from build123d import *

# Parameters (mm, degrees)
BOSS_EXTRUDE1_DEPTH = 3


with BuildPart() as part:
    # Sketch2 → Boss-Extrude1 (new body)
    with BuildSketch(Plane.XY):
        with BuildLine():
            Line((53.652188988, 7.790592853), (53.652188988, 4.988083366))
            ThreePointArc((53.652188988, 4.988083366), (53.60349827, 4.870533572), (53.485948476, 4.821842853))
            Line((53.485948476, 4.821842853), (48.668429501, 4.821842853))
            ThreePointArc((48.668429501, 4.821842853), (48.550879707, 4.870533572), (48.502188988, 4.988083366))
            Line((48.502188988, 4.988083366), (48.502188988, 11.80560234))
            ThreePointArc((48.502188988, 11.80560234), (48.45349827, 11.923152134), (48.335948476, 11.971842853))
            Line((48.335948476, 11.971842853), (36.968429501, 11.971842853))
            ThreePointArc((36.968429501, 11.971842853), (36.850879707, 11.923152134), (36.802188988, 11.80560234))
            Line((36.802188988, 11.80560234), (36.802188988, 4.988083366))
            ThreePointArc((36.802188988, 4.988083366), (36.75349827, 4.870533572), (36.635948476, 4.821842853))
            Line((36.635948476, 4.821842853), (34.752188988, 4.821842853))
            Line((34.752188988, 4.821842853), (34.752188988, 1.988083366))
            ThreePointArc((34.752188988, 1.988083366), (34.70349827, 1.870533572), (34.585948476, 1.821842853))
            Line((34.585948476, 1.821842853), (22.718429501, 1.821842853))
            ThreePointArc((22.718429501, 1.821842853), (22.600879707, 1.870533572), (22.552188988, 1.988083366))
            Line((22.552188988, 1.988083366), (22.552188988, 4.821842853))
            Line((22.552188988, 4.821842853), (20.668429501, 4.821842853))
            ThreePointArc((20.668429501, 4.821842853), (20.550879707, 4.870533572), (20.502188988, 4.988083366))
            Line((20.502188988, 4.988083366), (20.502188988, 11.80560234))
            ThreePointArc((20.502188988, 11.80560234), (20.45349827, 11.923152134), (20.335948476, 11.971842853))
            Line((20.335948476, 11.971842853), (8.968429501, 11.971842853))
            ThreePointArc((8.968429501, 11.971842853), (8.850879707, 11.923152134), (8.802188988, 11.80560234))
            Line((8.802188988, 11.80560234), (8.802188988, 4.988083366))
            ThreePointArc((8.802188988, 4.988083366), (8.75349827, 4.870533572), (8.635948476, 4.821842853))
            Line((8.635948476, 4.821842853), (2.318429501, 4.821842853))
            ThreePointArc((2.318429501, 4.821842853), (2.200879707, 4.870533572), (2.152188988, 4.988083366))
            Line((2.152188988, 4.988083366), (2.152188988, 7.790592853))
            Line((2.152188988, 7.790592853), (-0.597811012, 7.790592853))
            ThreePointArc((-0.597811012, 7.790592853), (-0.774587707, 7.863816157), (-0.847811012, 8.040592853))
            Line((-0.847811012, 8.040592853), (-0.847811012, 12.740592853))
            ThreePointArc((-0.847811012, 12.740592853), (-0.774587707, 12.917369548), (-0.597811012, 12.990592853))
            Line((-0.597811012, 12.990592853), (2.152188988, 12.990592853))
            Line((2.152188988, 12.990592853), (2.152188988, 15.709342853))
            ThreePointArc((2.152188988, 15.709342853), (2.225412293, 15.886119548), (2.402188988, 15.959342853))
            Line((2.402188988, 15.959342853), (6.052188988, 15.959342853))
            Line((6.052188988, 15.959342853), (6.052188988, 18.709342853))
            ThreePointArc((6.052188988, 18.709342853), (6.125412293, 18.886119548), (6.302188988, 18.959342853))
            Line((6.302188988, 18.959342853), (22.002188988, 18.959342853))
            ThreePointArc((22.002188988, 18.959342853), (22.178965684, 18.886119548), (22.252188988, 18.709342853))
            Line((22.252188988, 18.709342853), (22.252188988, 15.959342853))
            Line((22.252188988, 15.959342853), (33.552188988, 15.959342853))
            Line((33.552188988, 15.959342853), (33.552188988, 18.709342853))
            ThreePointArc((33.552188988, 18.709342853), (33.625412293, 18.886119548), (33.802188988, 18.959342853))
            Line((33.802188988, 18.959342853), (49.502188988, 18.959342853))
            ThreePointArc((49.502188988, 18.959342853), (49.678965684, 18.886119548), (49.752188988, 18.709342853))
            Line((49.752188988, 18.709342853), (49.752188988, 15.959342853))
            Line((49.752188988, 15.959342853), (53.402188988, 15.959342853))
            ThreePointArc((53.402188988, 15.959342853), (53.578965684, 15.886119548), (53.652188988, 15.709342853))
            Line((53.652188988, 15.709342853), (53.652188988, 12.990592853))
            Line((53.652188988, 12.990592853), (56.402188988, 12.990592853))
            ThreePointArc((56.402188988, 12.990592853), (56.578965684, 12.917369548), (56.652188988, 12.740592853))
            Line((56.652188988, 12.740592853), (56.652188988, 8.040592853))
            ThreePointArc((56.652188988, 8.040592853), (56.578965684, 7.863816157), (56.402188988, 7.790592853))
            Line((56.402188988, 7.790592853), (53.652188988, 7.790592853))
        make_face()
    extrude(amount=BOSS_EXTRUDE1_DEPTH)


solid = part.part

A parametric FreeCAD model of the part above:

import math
import FreeCAD as App
import Part
import Sketcher

V = App.Vector

doc = App.newDocument("Part")
body = doc.addObject("PartDesign::Body", "Body")

# Sketch on XY plane
sketch1 = body.newObject("Sketcher::SketchObject", "Sketch")
sketch1.AttachmentSupport = (doc.getObject("XY_Plane"), [""])
sketch1.MapMode = "FlatFace"
sketch1.addGeometry(Part.LineSegment(V(53.65, 4.99, 0), V(53.65, 7.79, 0)), False)
sketch1.addGeometry(Part.LineSegment(V(53.65, 7.79, 0), V(56.4, 7.79, 0)), False)
sketch1.addGeometry(Part.ArcOfCircle(Part.Circle(V(56.4, 8.04, 0), V(0, 0, 1), 0.25), math.radians(-90), math.radians(0)), False)
sketch1.addGeometry(Part.LineSegment(V(56.65, 8.04, 0), V(56.65, 12.74, 0)), False)
sketch1.addGeometry(Part.ArcOfCircle(Part.Circle(V(56.4, 12.74, 0), V(0, 0, 1), 0.25), math.radians(0), math.radians(90)), False)
sketch1.addGeometry(Part.LineSegment(V(56.4, 12.99, 0), V(53.65, 12.99, 0)), False)
sketch1.addGeometry(Part.LineSegment(V(53.65, 12.99, 0), V(53.65, 15.71, 0)), False)
sketch1.addGeometry(Part.ArcOfCircle(Part.Circle(V(53.4, 15.71, 0), V(0, 0, 1), 0.25), math.radians(0), math.radians(90)), False)
sketch1.addGeometry(Part.LineSegment(V(53.4, 15.96, 0), V(49.75, 15.96, 0)), False)
sketch1.addGeometry(Part.LineSegment(V(49.75, 15.96, 0), V(49.75, 18.71, 0)), False)
sketch1.addGeometry(Part.ArcOfCircle(Part.Circle(V(49.5, 18.71, 0), V(0, 0, 1), 0.25), math.radians(0), math.radians(90)), False)
sketch1.addGeometry(Part.LineSegment(V(49.5, 18.96, 0), V(33.8, 18.96, 0)), False)
sketch1.addGeometry(Part.ArcOfCircle(Part.Circle(V(33.8, 18.71, 0), V(0, 0, 1), 0.25), math.radians(90), math.radians(180)), False)
sketch1.addGeometry(Part.LineSegment(V(33.55, 18.71, 0), V(33.55, 15.96, 0)), False)
sketch1.addGeometry(Part.LineSegment(V(33.55, 15.96, 0), V(22.25, 15.96, 0)), False)
sketch1.addGeometry(Part.LineSegment(V(22.25, 15.96, 0), V(22.25, 18.71, 0)), False)
sketch1.addGeometry(Part.ArcOfCircle(Part.Circle(V(22, 18.71, 0), V(0, 0, 1), 0.25), math.radians(0), math.radians(90)), False)
sketch1.addGeometry(Part.LineSegment(V(22, 18.96, 0), V(6.3, 18.96, 0)), False)
sketch1.addGeometry(Part.ArcOfCircle(Part.Circle(V(6.3, 18.71, 0), V(0, 0, 1), 0.25), math.radians(90), math.radians(180)), False)
sketch1.addGeometry(Part.LineSegment(V(6.05, 18.71, 0), V(6.05, 15.96, 0)), False)
sketch1.addGeometry(Part.LineSegment(V(6.05, 15.96, 0), V(2.4, 15.96, 0)), False)
sketch1.addGeometry(Part.ArcOfCircle(Part.Circle(V(2.4, 15.71, 0), V(0, 0, 1), 0.25), math.radians(90), math.radians(180)), False)
sketch1.addGeometry(Part.LineSegment(V(2.15, 15.71, 0), V(2.15, 12.99, 0)), False)
sketch1.addGeometry(Part.LineSegment(V(2.15, 12.99, 0), V(-0.6, 12.99, 0)), False)
sketch1.addGeometry(Part.ArcOfCircle(Part.Circle(V(-0.6, 12.74, 0), V(0, 0, 1), 0.25), math.radians(90), math.radians(180)), False)
sketch1.addGeometry(Part.LineSegment(V(-0.85, 12.74, 0), V(-0.85, 8.04, 0)), False)
sketch1.addGeometry(Part.ArcOfCircle(Part.Circle(V(-0.6, 8.04, 0), V(0, 0, 1), 0.25), math.radians(180), math.radians(270)), False)
sketch1.addGeometry(Part.LineSegment(V(-0.6, 7.79, 0), V(2.15, 7.79, 0)), False)
sketch1.addGeometry(Part.LineSegment(V(2.15, 7.79, 0), V(2.15, 4.99, 0)), False)
sketch1.addGeometry(Part.ArcOfCircle(Part.Circle(V(2.32, 4.99, 0), V(0, 0, 1), 0.17), math.radians(180), math.radians(270)), False)
sketch1.addGeometry(Part.LineSegment(V(2.32, 4.82, 0), V(8.64, 4.82, 0)), False)
sketch1.addGeometry(Part.ArcOfCircle(Part.Circle(V(8.64, 4.99, 0), V(0, 0, 1), 0.17), math.radians(-90), math.radians(0)), False)
sketch1.addGeometry(Part.LineSegment(V(8.8, 4.99, 0), V(8.8, 11.81, 0)), False)
sketch1.addGeometry(Part.ArcOfCircle(Part.Circle(V(8.97, 11.81, 0), V(0, 0, 1), 0.17), math.radians(90), math.radians(180)), False)
sketch1.addGeometry(Part.LineSegment(V(8.97, 11.97, 0), V(20.34, 11.97, 0)), False)
sketch1.addGeometry(Part.ArcOfCircle(Part.Circle(V(20.34, 11.81, 0), V(0, 0, 1), 0.17), math.radians(0), math.radians(90)), False)
sketch1.addGeometry(Part.LineSegment(V(20.5, 11.81, 0), V(20.5, 4.99, 0)), False)
sketch1.addGeometry(Part.ArcOfCircle(Part.Circle(V(20.67, 4.99, 0), V(0, 0, 1), 0.17), math.radians(180), math.radians(270)), False)
sketch1.addGeometry(Part.LineSegment(V(20.67, 4.82, 0), V(22.55, 4.82, 0)), False)
sketch1.addGeometry(Part.LineSegment(V(22.55, 4.82, 0), V(22.55, 1.99, 0)), False)
sketch1.addGeometry(Part.ArcOfCircle(Part.Circle(V(22.72, 1.99, 0), V(0, 0, 1), 0.17), math.radians(180), math.radians(270)), False)
sketch1.addGeometry(Part.LineSegment(V(22.72, 1.82, 0), V(34.59, 1.82, 0)), False)
sketch1.addGeometry(Part.ArcOfCircle(Part.Circle(V(34.59, 1.99, 0), V(0, 0, 1), 0.17), math.radians(-90), math.radians(0)), False)
sketch1.addGeometry(Part.LineSegment(V(34.75, 1.99, 0), V(34.75, 4.82, 0)), False)
sketch1.addGeometry(Part.LineSegment(V(34.75, 4.82, 0), V(36.64, 4.82, 0)), False)
sketch1.addGeometry(Part.ArcOfCircle(Part.Circle(V(36.64, 4.99, 0), V(0, 0, 1), 0.17), math.radians(-90), math.radians(0)), False)
sketch1.addGeometry(Part.LineSegment(V(36.8, 4.99, 0), V(36.8, 11.81, 0)), False)
sketch1.addGeometry(Part.ArcOfCircle(Part.Circle(V(36.97, 11.81, 0), V(0, 0, 1), 0.17), math.radians(90), math.radians(180)), False)
sketch1.addGeometry(Part.LineSegment(V(36.97, 11.97, 0), V(48.34, 11.97, 0)), False)
sketch1.addGeometry(Part.ArcOfCircle(Part.Circle(V(48.34, 11.81, 0), V(0, 0, 1), 0.17), math.radians(0), math.radians(90)), False)
sketch1.addGeometry(Part.LineSegment(V(48.5, 11.81, 0), V(48.5, 4.99, 0)), False)
sketch1.addGeometry(Part.ArcOfCircle(Part.Circle(V(48.67, 4.99, 0), V(0, 0, 1), 0.17), math.radians(180), math.radians(270)), False)
sketch1.addGeometry(Part.LineSegment(V(48.67, 4.82, 0), V(53.49, 4.82, 0)), False)
sketch1.addGeometry(Part.ArcOfCircle(Part.Circle(V(53.49, 4.99, 0), V(0, 0, 1), 0.17), math.radians(-90), math.radians(0)), False)
sketch1.addConstraint(Sketcher.Constraint("Coincident", 0, 2, 1, 1))
sketch1.addConstraint(Sketcher.Constraint("Tangent", 1, 2, 2, 1))
sketch1.addConstraint(Sketcher.Constraint("Tangent", 2, 2, 3, 1))
sketch1.addConstraint(Sketcher.Constraint("Tangent", 3, 2, 4, 1))
sketch1.addConstraint(Sketcher.Constraint("Tangent", 4, 2, 5, 1))
sketch1.addConstraint(Sketcher.Constraint("Coincident", 5, 2, 6, 1))
sketch1.addConstraint(Sketcher.Constraint("Tangent", 6, 2, 7, 1))
sketch1.addConstraint(Sketcher.Constraint("Tangent", 7, 2, 8, 1))
sketch1.addConstraint(Sketcher.Constraint("Coincident", 8, 2, 9, 1))
sketch1.addConstraint(Sketcher.Constraint("Tangent", 9, 2, 10, 1))
sketch1.addConstraint(Sketcher.Constraint("Tangent", 10, 2, 11, 1))
sketch1.addConstraint(Sketcher.Constraint("Tangent", 11, 2, 12, 1))
sketch1.addConstraint(Sketcher.Constraint("Tangent", 12, 2, 13, 1))
sketch1.addConstraint(Sketcher.Constraint("Coincident", 13, 2, 14, 1))
sketch1.addConstraint(Sketcher.Constraint("Coincident", 14, 2, 15, 1))
sketch1.addConstraint(Sketcher.Constraint("Tangent", 15, 2, 16, 1))
sketch1.addConstraint(Sketcher.Constraint("Tangent", 16, 2, 17, 1))
sketch1.addConstraint(Sketcher.Constraint("Tangent", 17, 2, 18, 1))
sketch1.addConstraint(Sketcher.Constraint("Tangent", 18, 2, 19, 1))
sketch1.addConstraint(Sketcher.Constraint("Coincident", 19, 2, 20, 1))
sketch1.addConstraint(Sketcher.Constraint("Tangent", 20, 2, 21, 1))
sketch1.addConstraint(Sketcher.Constraint("Tangent", 21, 2, 22, 1))
sketch1.addConstraint(Sketcher.Constraint("Coincident", 22, 2, 23, 1))
sketch1.addConstraint(Sketcher.Constraint("Tangent", 23, 2, 24, 1))
sketch1.addConstraint(Sketcher.Constraint("Tangent", 24, 2, 25, 1))
sketch1.addConstraint(Sketcher.Constraint("Tangent", 25, 2, 26, 1))
sketch1.addConstraint(Sketcher.Constraint("Tangent", 26, 2, 27, 1))
sketch1.addConstraint(Sketcher.Constraint("Coincident", 27, 2, 28, 1))
sketch1.addConstraint(Sketcher.Constraint("Tangent", 28, 2, 29, 1))
sketch1.addConstraint(Sketcher.Constraint("Tangent", 29, 2, 30, 1))
sketch1.addConstraint(Sketcher.Constraint("Tangent", 30, 2, 31, 1))
sketch1.addConstraint(Sketcher.Constraint("Tangent", 31, 2, 32, 1))
sketch1.addConstraint(Sketcher.Constraint("Tangent", 32, 2, 33, 2))
sketch1.addConstraint(Sketcher.Constraint("Tangent", 33, 1, 34, 1))
sketch1.addConstraint(Sketcher.Constraint("Tangent", 34, 2, 35, 2))
sketch1.addConstraint(Sketcher.Constraint("Tangent", 35, 1, 36, 1))
sketch1.addConstraint(Sketcher.Constraint("Tangent", 36, 2, 37, 1))
sketch1.addConstraint(Sketcher.Constraint("Tangent", 37, 2, 38, 1))
sketch1.addConstraint(Sketcher.Constraint("Coincident", 38, 2, 39, 1))
sketch1.addConstraint(Sketcher.Constraint("Tangent", 39, 2, 40, 1))
sketch1.addConstraint(Sketcher.Constraint("Tangent", 40, 2, 41, 1))
sketch1.addConstraint(Sketcher.Constraint("Tangent", 41, 2, 42, 1))
sketch1.addConstraint(Sketcher.Constraint("Tangent", 42, 2, 43, 1))
sketch1.addConstraint(Sketcher.Constraint("Coincident", 43, 2, 44, 1))
sketch1.addConstraint(Sketcher.Constraint("Tangent", 44, 2, 45, 1))
sketch1.addConstraint(Sketcher.Constraint("Tangent", 45, 2, 46, 1))
sketch1.addConstraint(Sketcher.Constraint("Tangent", 46, 2, 47, 2))
sketch1.addConstraint(Sketcher.Constraint("Tangent", 47, 1, 48, 1))
sketch1.addConstraint(Sketcher.Constraint("Tangent", 48, 2, 49, 2))
sketch1.addConstraint(Sketcher.Constraint("Tangent", 49, 1, 50, 1))
sketch1.addConstraint(Sketcher.Constraint("Tangent", 50, 2, 51, 1))
sketch1.addConstraint(Sketcher.Constraint("Tangent", 51, 2, 52, 1))
sketch1.addConstraint(Sketcher.Constraint("Tangent", 52, 2, 53, 1))
sketch1.addConstraint(Sketcher.Constraint("Tangent", 53, 2, 0, 1))
sketch1.addConstraint(Sketcher.Constraint("Vertical", 0))
sketch1.addConstraint(Sketcher.Constraint("Horizontal", 1))
sketch1.addConstraint(Sketcher.Constraint("Vertical", 3))
sketch1.addConstraint(Sketcher.Constraint("Horizontal", 5))
sketch1.addConstraint(Sketcher.Constraint("Vertical", 6))
sketch1.addConstraint(Sketcher.Constraint("Horizontal", 8))
sketch1.addConstraint(Sketcher.Constraint("Vertical", 9))
sketch1.addConstraint(Sketcher.Constraint("Horizontal", 11))
sketch1.addConstraint(Sketcher.Constraint("Vertical", 13))
sketch1.addConstraint(Sketcher.Constraint("Horizontal", 14))
sketch1.addConstraint(Sketcher.Constraint("Vertical", 15))
sketch1.addConstraint(Sketcher.Constraint("Horizontal", 17))
sketch1.addConstraint(Sketcher.Constraint("Vertical", 19))
sketch1.addConstraint(Sketcher.Constraint("Horizontal", 20))
sketch1.addConstraint(Sketcher.Constraint("Vertical", 22))
sketch1.addConstraint(Sketcher.Constraint("Horizontal", 23))
sketch1.addConstraint(Sketcher.Constraint("Vertical", 25))
sketch1.addConstraint(Sketcher.Constraint("Horizontal", 27))
sketch1.addConstraint(Sketcher.Constraint("Vertical", 28))
sketch1.addConstraint(Sketcher.Constraint("Horizontal", 30))
sketch1.addConstraint(Sketcher.Constraint("Vertical", 32))
sketch1.addConstraint(Sketcher.Constraint("Horizontal", 34))
sketch1.addConstraint(Sketcher.Constraint("Vertical", 36))
sketch1.addConstraint(Sketcher.Constraint("Horizontal", 38))
sketch1.addConstraint(Sketcher.Constraint("Vertical", 39))
sketch1.addConstraint(Sketcher.Constraint("Horizontal", 41))
sketch1.addConstraint(Sketcher.Constraint("Vertical", 43))
sketch1.addConstraint(Sketcher.Constraint("Horizontal", 44))
sketch1.addConstraint(Sketcher.Constraint("Vertical", 46))
sketch1.addConstraint(Sketcher.Constraint("Horizontal", 48))
sketch1.addConstraint(Sketcher.Constraint("Vertical", 50))
sketch1.addConstraint(Sketcher.Constraint("Horizontal", 52))
sketch1.addConstraint(Sketcher.Constraint("Equal", 2, 4))
sketch1.addConstraint(Sketcher.Constraint("Equal", 4, 7))
sketch1.addConstraint(Sketcher.Constraint("Equal", 7, 10))
sketch1.addConstraint(Sketcher.Constraint("Equal", 10, 12))
sketch1.addConstraint(Sketcher.Constraint("Equal", 12, 16))
sketch1.addConstraint(Sketcher.Constraint("Equal", 16, 18))
sketch1.addConstraint(Sketcher.Constraint("Equal", 18, 21))
sketch1.addConstraint(Sketcher.Constraint("Equal", 21, 24))
sketch1.addConstraint(Sketcher.Constraint("Equal", 24, 26))
sketch1.addConstraint(Sketcher.Constraint("Equal", 29, 31))
sketch1.addConstraint(Sketcher.Constraint("Equal", 31, 33))
sketch1.addConstraint(Sketcher.Constraint("Equal", 33, 35))
sketch1.addConstraint(Sketcher.Constraint("Equal", 35, 37))
sketch1.addConstraint(Sketcher.Constraint("Equal", 37, 40))
sketch1.addConstraint(Sketcher.Constraint("Equal", 40, 42))
sketch1.addConstraint(Sketcher.Constraint("Equal", 42, 45))
sketch1.addConstraint(Sketcher.Constraint("Equal", 45, 47))
sketch1.addConstraint(Sketcher.Constraint("Equal", 47, 49))
sketch1.addConstraint(Sketcher.Constraint("Equal", 49, 51))
sketch1.addConstraint(Sketcher.Constraint("Equal", 51, 53))
sketch1.addConstraint(Sketcher.Constraint("Horizontal", 12, 3, 16, 3))
sketch1.addConstraint(Sketcher.Constraint("Horizontal", 7, 3, 21, 3))
sketch1.addConstraint(Sketcher.Constraint("Horizontal", 4, 3, 24, 3))
sketch1.addConstraint(Sketcher.Constraint("Horizontal", 2, 3, 26, 3))
sketch1.addConstraint(Sketcher.Constraint("Horizontal", 31, 3, 37, 3))
sketch1.addConstraint(Sketcher.Constraint("Horizontal", 37, 3, 45, 3))
sketch1.addConstraint(Sketcher.Constraint("Horizontal", 35, 3, 47, 3))
sketch1.addConstraint(Sketcher.Constraint("Horizontal", 45, 3, 51, 3))
sketch1.addConstraint(Sketcher.Constraint("Horizontal", 8, 2, 13, 2))
sketch1.addConstraint(Sketcher.Constraint("Vertical", 0, 2, 5, 2))
sketch1.addConstraint(Sketcher.Constraint("Vertical", 22, 2, 27, 2))
sketch1.addConstraint(Sketcher.Constraint("Equal", 11, 17))
sketch1.addConstraint(Sketcher.Constraint("Equal", 8, 20))
sketch1.addConstraint(Sketcher.Constraint("Equal", 5, 23))
sketch1.addConstraint(Sketcher.Constraint("Equal", 38, 44))
sketch1.addConstraint(Sketcher.Constraint("Equal", 34, 48))
sketch1.addConstraint(Sketcher.Constraint("Equal", 27, 9))
sketch1.addConstraint(Sketcher.Constraint("Radius", 2, 0.25))
sketch1.addConstraint(Sketcher.Constraint("DistanceX", 11, 2, 11, 1, 15.7))
sketch1.addConstraint(Sketcher.Constraint("DistanceX", 14, 2, 14, 1, 11.3))
sketch1.addConstraint(Sketcher.Constraint("DistanceY", 3, 1, 3, 2, 4.7))
sketch1.addConstraint(Sketcher.Constraint("DistanceX", 1, 1, 1, 2, 2.75))
sketch1.addConstraint(Sketcher.Constraint("DistanceX", 8, 2, 8, 1, 3.65))
sketch1.addConstraint(Sketcher.Constraint("Radius", 29, 0.166241))
sketch1.addConstraint(Sketcher.Constraint("DistanceX", 30, 1, 30, 2, 6.317519))
sketch1.addConstraint(Sketcher.Constraint("DistanceX", 34, 1, 34, 2, 11.367519))
sketch1.addConstraint(Sketcher.Constraint("DistanceX", 38, 1, 38, 2, 1.883759))
sketch1.addConstraint(Sketcher.Constraint("DistanceX", 41, 1, 41, 2, 11.867519))
sketch1.addConstraint(Sketcher.Constraint("DistanceY", 0, 1, 0, 2, 2.802509))
sketch1.addConstraint(Sketcher.Constraint("DistanceY", 6, 1, 6, 2, 2.71875))
sketch1.addConstraint(Sketcher.Constraint("DistanceY", 32, 1, 32, 2, 6.817519))
sketch1.addConstraint(Sketcher.Constraint("DistanceY", 39, 2, 39, 1, 2.833759))
sketch1.addConstraint(Sketcher.Constraint("DistanceX", -1, 1, 2, 3, 56.402189))
sketch1.addConstraint(Sketcher.Constraint("DistanceY", -1, 1, 2, 3, 8.040593))
pad1 = body.newObject("PartDesign::Pad", "Pad")
pad1.Profile = sketch1
pad1.Length = 3

doc.recompute()
